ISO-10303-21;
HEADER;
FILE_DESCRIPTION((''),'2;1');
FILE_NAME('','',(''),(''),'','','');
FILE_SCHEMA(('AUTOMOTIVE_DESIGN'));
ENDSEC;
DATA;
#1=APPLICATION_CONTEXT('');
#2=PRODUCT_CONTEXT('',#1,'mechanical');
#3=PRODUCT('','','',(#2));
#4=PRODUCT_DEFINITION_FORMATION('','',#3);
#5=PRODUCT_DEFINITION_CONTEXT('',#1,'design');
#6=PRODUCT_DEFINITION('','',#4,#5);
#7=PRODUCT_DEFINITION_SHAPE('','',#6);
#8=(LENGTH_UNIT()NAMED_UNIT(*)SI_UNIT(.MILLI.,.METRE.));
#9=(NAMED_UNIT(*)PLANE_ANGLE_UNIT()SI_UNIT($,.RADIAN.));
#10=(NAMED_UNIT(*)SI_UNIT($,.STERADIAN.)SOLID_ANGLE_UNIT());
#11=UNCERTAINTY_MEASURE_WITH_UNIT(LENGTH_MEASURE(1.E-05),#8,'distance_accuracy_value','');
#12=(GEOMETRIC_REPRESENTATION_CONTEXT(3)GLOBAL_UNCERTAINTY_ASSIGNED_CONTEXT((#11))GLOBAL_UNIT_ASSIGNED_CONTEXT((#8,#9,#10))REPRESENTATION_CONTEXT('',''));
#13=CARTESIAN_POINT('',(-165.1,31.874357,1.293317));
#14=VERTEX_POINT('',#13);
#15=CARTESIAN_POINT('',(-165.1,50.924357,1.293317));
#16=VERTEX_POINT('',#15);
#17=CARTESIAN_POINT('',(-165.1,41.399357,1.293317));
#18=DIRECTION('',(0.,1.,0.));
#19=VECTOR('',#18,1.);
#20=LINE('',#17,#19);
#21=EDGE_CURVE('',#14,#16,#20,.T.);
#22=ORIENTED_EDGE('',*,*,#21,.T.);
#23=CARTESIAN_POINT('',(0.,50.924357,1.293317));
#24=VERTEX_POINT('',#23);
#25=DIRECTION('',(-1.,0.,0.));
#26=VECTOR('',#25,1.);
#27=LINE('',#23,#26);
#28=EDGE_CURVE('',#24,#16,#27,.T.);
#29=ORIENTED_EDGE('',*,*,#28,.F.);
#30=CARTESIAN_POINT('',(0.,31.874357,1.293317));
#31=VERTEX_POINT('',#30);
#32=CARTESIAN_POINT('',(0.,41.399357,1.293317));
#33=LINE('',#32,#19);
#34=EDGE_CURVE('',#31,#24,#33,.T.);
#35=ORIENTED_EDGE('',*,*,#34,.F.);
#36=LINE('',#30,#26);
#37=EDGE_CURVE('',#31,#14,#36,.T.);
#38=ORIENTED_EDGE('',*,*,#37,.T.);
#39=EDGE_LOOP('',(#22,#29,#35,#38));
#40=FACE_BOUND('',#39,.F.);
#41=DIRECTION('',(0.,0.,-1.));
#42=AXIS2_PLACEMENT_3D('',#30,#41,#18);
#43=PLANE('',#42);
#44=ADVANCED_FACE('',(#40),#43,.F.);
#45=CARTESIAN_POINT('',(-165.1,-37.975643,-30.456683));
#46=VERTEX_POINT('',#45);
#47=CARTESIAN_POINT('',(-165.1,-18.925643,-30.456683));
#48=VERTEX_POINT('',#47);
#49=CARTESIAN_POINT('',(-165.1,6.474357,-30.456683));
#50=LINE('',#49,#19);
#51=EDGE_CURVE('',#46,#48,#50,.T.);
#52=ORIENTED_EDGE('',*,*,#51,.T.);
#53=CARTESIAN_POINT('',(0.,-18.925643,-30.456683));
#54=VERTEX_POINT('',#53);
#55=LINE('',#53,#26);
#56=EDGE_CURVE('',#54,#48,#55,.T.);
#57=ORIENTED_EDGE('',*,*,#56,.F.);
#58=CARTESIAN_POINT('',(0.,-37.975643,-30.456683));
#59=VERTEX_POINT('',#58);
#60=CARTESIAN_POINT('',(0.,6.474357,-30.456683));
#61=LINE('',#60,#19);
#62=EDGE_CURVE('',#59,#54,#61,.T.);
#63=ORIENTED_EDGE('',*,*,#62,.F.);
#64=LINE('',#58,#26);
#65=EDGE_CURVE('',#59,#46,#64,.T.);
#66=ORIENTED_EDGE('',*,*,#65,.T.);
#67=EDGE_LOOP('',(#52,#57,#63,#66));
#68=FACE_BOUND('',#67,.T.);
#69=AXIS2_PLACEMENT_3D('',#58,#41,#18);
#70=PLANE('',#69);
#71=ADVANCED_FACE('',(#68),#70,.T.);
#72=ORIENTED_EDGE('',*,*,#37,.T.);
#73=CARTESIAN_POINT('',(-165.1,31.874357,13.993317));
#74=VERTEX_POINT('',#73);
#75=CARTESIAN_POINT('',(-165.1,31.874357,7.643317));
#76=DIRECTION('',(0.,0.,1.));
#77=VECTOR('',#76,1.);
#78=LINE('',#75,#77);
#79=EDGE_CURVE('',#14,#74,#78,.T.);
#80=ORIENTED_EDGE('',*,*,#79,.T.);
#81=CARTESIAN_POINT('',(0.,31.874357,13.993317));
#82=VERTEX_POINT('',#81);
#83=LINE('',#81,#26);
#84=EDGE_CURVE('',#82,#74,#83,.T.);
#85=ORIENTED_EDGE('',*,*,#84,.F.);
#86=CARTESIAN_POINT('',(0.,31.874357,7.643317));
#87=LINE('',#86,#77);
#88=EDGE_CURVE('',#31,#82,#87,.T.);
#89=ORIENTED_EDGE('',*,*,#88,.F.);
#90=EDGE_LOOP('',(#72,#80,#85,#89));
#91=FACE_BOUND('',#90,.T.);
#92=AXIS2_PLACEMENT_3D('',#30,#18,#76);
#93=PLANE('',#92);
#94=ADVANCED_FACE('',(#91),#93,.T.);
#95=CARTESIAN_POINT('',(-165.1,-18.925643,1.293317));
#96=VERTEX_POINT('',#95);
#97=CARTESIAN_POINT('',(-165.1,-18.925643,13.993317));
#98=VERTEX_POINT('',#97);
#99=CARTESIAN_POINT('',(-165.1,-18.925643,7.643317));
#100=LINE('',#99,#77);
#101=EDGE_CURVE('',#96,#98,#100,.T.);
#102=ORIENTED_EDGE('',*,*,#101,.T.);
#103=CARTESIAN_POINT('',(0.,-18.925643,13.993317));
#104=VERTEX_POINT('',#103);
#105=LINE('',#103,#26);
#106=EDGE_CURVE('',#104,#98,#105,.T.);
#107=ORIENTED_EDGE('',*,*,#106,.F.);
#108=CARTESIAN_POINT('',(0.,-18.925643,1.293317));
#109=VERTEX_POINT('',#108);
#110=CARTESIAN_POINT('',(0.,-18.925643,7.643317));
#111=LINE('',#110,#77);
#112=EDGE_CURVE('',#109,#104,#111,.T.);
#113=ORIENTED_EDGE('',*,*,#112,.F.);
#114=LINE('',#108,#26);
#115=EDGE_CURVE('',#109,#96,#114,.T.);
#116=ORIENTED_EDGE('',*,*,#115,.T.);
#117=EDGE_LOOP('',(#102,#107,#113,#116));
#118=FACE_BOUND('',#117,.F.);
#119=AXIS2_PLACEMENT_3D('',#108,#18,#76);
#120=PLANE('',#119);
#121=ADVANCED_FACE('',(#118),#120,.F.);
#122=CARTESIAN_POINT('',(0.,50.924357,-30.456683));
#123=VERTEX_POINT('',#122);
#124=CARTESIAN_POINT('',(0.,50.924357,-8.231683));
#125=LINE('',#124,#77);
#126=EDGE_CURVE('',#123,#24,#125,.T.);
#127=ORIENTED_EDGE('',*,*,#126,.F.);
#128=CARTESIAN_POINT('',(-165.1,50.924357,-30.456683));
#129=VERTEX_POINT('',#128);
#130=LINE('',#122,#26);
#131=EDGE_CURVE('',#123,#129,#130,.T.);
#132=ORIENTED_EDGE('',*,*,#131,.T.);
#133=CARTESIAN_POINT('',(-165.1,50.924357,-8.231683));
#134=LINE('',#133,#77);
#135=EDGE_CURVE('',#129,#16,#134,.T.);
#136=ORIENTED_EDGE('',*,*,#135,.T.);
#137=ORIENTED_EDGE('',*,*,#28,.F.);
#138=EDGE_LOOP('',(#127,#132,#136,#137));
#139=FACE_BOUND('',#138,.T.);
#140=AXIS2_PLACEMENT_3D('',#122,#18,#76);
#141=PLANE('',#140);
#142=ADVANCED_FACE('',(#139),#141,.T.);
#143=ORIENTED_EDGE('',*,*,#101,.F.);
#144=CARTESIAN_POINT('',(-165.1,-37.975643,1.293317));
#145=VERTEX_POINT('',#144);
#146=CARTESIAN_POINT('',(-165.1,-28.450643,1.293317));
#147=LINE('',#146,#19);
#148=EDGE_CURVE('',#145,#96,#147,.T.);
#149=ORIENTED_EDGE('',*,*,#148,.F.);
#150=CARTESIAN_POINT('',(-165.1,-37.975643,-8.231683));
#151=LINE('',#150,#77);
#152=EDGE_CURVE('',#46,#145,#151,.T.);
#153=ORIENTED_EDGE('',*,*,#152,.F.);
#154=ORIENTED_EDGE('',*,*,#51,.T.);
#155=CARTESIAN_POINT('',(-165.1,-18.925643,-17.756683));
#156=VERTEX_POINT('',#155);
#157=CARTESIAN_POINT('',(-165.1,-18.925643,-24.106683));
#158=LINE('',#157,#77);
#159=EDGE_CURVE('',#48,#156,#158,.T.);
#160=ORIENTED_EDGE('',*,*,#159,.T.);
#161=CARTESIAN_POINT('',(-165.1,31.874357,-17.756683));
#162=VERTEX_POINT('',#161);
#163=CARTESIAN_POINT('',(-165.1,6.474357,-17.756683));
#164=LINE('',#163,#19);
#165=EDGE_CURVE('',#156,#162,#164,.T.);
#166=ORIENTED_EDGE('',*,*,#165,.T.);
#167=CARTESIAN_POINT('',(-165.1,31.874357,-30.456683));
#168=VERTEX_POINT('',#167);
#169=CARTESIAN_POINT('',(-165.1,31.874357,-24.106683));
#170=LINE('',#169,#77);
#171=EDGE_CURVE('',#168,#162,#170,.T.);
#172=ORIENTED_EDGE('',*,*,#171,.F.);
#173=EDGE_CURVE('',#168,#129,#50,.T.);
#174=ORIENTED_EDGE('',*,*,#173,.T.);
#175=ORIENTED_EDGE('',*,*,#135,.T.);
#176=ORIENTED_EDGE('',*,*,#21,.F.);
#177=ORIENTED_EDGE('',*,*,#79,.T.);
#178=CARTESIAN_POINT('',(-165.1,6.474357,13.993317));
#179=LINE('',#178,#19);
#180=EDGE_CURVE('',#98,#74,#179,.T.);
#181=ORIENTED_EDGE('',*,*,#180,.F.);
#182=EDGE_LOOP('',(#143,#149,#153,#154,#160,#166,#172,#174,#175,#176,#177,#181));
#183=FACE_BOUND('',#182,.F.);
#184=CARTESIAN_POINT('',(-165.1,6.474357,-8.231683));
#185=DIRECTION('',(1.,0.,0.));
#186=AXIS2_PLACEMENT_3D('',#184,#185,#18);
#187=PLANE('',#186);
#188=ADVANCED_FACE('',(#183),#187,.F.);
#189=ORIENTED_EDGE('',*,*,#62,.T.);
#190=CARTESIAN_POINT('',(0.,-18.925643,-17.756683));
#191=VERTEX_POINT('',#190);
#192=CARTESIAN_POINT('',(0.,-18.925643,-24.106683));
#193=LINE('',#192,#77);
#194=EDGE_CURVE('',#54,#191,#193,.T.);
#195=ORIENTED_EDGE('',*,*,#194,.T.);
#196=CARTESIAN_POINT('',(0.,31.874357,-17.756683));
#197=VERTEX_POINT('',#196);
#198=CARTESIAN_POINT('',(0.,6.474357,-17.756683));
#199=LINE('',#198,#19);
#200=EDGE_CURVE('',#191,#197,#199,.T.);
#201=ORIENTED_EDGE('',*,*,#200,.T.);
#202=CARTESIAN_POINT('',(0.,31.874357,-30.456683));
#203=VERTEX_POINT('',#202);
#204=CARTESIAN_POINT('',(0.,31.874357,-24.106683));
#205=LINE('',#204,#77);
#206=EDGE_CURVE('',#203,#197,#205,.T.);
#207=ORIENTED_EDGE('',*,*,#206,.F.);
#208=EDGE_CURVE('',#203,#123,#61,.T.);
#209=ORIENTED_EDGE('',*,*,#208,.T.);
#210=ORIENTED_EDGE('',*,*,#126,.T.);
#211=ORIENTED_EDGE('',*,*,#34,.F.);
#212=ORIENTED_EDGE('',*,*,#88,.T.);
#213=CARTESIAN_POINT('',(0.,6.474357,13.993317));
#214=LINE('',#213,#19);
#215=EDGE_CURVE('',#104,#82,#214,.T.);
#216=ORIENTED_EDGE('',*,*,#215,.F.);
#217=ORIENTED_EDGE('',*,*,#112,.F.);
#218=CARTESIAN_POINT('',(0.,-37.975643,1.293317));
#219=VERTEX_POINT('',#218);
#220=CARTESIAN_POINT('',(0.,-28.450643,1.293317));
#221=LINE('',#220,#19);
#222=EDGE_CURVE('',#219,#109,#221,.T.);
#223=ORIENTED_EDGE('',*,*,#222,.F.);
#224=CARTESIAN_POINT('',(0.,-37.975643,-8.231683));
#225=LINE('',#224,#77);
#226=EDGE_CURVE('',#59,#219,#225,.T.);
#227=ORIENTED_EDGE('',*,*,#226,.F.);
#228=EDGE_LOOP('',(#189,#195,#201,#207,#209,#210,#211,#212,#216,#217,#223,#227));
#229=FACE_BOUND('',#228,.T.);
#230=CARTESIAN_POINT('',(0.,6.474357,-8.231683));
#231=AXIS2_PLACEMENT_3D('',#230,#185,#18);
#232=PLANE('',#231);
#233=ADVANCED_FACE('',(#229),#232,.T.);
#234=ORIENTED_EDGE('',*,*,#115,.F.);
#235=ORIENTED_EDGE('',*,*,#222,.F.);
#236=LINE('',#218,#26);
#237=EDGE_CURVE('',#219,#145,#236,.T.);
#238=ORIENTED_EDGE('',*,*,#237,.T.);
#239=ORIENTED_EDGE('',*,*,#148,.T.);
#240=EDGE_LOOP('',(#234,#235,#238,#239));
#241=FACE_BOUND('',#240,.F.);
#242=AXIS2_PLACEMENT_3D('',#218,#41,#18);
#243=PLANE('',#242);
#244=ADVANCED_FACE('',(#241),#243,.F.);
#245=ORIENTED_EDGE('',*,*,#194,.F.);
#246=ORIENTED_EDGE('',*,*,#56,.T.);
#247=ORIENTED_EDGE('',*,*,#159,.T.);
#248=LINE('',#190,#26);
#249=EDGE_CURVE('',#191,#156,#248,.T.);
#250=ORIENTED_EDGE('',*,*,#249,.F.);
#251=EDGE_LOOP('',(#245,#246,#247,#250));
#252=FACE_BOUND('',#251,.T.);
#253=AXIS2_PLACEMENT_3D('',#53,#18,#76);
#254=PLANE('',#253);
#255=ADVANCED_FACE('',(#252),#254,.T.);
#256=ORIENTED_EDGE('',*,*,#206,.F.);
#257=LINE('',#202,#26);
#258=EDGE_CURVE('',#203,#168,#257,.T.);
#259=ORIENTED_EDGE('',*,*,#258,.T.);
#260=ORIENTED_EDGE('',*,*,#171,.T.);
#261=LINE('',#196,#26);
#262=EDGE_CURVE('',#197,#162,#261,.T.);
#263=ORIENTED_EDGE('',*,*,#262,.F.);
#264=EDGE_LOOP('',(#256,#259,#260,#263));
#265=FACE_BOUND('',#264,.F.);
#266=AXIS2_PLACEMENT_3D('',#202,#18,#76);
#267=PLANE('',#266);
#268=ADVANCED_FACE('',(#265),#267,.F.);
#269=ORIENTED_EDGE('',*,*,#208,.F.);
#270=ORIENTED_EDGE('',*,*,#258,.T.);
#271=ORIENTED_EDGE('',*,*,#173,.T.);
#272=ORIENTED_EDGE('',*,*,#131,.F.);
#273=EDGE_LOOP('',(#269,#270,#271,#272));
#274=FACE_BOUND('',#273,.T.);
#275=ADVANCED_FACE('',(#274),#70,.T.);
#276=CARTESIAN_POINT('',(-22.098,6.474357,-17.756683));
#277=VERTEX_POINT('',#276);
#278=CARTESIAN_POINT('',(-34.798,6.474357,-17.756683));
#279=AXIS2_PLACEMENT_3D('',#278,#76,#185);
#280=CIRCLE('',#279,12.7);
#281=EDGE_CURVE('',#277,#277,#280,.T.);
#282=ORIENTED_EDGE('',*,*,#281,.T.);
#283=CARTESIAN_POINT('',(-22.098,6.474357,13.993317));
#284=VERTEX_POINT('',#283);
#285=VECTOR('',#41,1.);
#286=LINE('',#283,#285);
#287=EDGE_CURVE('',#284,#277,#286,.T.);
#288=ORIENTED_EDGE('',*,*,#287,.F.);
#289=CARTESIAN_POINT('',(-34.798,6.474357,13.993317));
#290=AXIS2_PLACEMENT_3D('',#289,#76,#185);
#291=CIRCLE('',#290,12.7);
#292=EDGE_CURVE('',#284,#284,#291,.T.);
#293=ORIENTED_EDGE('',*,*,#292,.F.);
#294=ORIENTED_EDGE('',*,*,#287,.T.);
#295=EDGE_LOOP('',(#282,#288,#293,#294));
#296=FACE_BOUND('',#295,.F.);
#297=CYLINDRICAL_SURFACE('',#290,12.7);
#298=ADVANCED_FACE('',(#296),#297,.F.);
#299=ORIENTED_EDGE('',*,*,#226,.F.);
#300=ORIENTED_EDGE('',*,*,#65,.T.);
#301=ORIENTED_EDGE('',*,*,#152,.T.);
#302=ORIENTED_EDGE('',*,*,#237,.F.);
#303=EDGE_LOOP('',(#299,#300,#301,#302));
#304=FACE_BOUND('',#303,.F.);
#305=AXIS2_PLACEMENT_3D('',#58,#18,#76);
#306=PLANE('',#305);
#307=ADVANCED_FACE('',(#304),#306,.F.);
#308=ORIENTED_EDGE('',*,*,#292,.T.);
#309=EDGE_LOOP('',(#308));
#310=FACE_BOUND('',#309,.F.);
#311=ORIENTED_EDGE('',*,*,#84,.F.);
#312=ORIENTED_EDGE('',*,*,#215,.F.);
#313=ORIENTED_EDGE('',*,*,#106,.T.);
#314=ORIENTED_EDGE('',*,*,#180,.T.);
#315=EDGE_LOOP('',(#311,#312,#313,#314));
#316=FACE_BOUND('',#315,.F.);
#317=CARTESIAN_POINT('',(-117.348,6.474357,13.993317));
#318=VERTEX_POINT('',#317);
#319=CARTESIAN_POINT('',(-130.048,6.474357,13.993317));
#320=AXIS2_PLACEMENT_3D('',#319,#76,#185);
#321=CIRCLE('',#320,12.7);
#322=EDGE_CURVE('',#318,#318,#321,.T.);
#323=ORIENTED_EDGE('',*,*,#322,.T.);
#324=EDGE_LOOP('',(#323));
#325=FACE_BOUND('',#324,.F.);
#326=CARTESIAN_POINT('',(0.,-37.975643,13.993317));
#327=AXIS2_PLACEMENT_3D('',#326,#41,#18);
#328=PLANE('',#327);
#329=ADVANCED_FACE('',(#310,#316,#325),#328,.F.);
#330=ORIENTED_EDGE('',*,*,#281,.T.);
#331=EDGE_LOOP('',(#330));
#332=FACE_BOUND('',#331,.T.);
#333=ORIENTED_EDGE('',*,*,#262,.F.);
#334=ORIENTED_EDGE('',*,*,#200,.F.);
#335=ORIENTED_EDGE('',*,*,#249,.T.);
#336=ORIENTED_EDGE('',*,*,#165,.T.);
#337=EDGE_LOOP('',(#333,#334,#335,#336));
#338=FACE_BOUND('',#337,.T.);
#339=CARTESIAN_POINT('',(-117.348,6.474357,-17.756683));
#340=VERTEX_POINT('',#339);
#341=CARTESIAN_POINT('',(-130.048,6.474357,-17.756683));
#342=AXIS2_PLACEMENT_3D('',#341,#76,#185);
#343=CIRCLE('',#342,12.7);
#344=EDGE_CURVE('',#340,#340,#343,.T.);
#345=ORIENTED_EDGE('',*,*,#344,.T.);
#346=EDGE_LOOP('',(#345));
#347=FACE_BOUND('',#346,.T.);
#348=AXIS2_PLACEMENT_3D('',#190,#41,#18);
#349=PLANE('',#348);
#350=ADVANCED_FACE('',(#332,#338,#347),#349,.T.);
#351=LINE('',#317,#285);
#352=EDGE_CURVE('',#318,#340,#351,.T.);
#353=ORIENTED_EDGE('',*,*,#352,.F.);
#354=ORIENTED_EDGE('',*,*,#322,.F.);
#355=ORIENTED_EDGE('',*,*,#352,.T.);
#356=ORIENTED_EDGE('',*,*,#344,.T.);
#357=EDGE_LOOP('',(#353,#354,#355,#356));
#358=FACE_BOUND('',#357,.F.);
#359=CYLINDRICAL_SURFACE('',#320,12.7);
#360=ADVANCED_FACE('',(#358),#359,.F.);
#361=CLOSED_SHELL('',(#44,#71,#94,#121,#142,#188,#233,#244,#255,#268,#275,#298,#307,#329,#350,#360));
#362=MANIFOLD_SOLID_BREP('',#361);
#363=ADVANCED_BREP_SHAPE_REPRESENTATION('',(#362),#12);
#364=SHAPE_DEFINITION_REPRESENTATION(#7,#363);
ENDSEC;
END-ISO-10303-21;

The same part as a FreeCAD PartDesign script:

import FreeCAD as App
import Part
import Sketcher

V = App.Vector
Q = App.Units.Quantity

doc = App.newDocument("Part")
body = doc.addObject("PartDesign::Body", "Body")

# Sketch on YZ plane
sketch1 = body.newObject("Sketcher::SketchObject", "Sketch")
sketch1.AttachmentSupport = (doc.getObject("YZ_Plane"), [""])
sketch1.MapMode = "FlatFace"
sketch1.addGeometry(Part.LineSegment(V(-38, 14, 0), V(-38, -30, 0)), False)
sketch1.addGeometry(Part.LineSegment(V(-38, -30, 0), V(51, -30, 0)), False)
sketch1.addGeometry(Part.LineSegment(V(51, -30, 0), V(51, 14, 0)), False)
sketch1.addGeometry(Part.LineSegment(V(51, 14, 0), V(-38, 14, 0)), False)
sketch1.addConstraint(Sketcher.Constraint("Coincident", 0, 2, 1, 1))
sketch1.addConstraint(Sketcher.Constraint("Coincident", 1, 2, 2, 1))
sketch1.addConstraint(Sketcher.Constraint("Coincident", 2, 2, 3, 1))
sketch1.addConstraint(Sketcher.Constraint("Coincident", 3, 2, 0, 1))
sketch1.addConstraint(Sketcher.Constraint("Vertical", 0))
sketch1.addConstraint(Sketcher.Constraint("Horizontal", 1))
sketch1.addConstraint(Sketcher.Constraint("Vertical", 2))
sketch1.addConstraint(Sketcher.Constraint("Horizontal", 3))
sketch1.addConstraint(Sketcher.Constraint("DistanceX", 1, 1, 1, 2, Q("3.5 in")))
sketch1.addConstraint(Sketcher.Constraint("DistanceY", 0, 2, 0, 1, Q("1.75 in")))
sketch1.addConstraint(Sketcher.Constraint("DistanceX", 0, 2, -1, 1, Q("37.975643 mm")))
sketch1.addConstraint(Sketcher.Constraint("DistanceY", 0, 2, -1, 1, Q("30.456683 mm")))
pad1 = body.newObject("PartDesign::Pad", "Pad")
pad1.Profile = sketch1
pad1.Length = Q("6.5 in")
pad1.Reversed = True

# Sketch on YZ plane
sketch2 = body.newObject("Sketcher::SketchObject", "Sketch001")
sketch2.AttachmentSupport = (doc.getObject("YZ_Plane"), [""])
sketch2.MapMode = "FlatFace"
sketch2.addGeometry(Part.LineSegment(V(-19, -18, 0), V(-19, -30, 0)), False)
sketch2.addGeometry(Part.LineSegment(V(-19, -30, 0), V(32, -30, 0)), False)
sketch2.addGeometry(Part.LineSegment(V(32, -30, 0), V(32, -18, 0)), False)
sketch2.addGeometry(Part.LineSegment(V(32, -18, 0), V(-19, -18, 0)), False)
sketch2.addConstraint(Sketcher.Constraint("Coincident", 0, 2, 1, 1))
sketch2.addConstraint(Sketcher.Constraint("Coincident", 1, 2, 2, 1))
sketch2.addConstraint(Sketcher.Constraint("Coincident", 2, 2, 3, 1))
sketch2.addConstraint(Sketcher.Constraint("Coincident", 3, 2, 0, 1))
sketch2.addConstraint(Sketcher.Constraint("Vertical", 0))
sketch2.addConstraint(Sketcher.Constraint("Horizontal", 1))
sketch2.addConstraint(Sketcher.Constraint("Vertical", 2))
sketch2.addConstraint(Sketcher.Constraint("Horizontal", 3))
sketch2.addConstraint(Sketcher.Constraint("DistanceX", 1, 1, 1, 2, Q("2 in")))
sketch2.addConstraint(Sketcher.Constraint("DistanceY", 0, 2, 0, 1, Q("0.5 in")))
sketch2.addConstraint(Sketcher.Constraint("DistanceX", 0, 2, -1, 1, Q("18.925643 mm")))
sketch2.addConstraint(Sketcher.Constraint("DistanceY", 0, 2, -1, 1, Q("30.456683 mm")))
pocket1 = body.newObject("PartDesign::Pocket", "Pocket")
pocket1.Profile = sketch2
pocket1.Length = Q("6.5 in")

# Sketch on YZ plane
sketch3 = body.newObject("Sketcher::SketchObject", "Sketch002")
sketch3.AttachmentSupport = (doc.getObject("YZ_Plane"), [""])
sketch3.MapMode = "FlatFace"
sketch3.addGeometry(Part.LineSegment(V(32, 14, 0), V(32, 1, 0)), False)
sketch3.addGeometry(Part.LineSegment(V(32, 1, 0), V(51, 1, 0)), False)
sketch3.addGeometry(Part.LineSegment(V(51, 1, 0), V(51, 14, 0)), False)
sketch3.addGeometry(Part.LineSegment(V(51, 14, 0), V(32, 14, 0)), False)
sketch3.addGeometry(Part.LineSegment(V(-38, 14, 0), V(-38, 1, 0)), False)
sketch3.addGeometry(Part.LineSegment(V(-38, 1, 0), V(-19, 1, 0)), False)
sketch3.addGeometry(Part.LineSegment(V(-19, 1, 0), V(-19, 14, 0)), False)
sketch3.addGeometry(Part.LineSegment(V(-19, 14, 0), V(-38, 14, 0)), False)
sketch3.addConstraint(Sketcher.Constraint("Coincident", 0, 2, 1, 1))
sketch3.addConstraint(Sketcher.Constraint("Coincident", 1, 2, 2, 1))
sketch3.addConstraint(Sketcher.Constraint("Coincident", 2, 2, 3, 1))
sketch3.addConstraint(Sketcher.Constraint("Coincident", 3, 2, 0, 1))
sketch3.addConstraint(Sketcher.Constraint("Coincident", 4, 2, 5, 1))
sketch3.addConstraint(Sketcher.Constraint("Coincident", 5, 2, 6, 1))
sketch3.addConstraint(Sketcher.Constraint("Coincident", 6, 2, 7, 1))
sketch3.addConstraint(Sketcher.Constraint("Coincident", 7, 2, 4, 1))
sketch3.addConstraint(Sketcher.Constraint("Vertical", 0))
sketch3.addConstraint(Sketcher.Constraint("Horizontal", 1))
sketch3.addConstraint(Sketcher.Constraint("Vertical", 2))
sketch3.addConstraint(Sketcher.Constraint("Horizontal", 3))
sketch3.addConstraint(Sketcher.Constraint("Vertical", 4))
sketch3.addConstraint(Sketcher.Constraint("Horizontal", 5))
sketch3.addConstraint(Sketcher.Constraint("Vertical", 6))
sketch3.addConstraint(Sketcher.Constraint("Horizontal", 7))
sketch3.addConstraint(Sketcher.Constraint("Horizontal", 1, 2, 4, 2))
sketch3.addConstraint(Sketcher.Constraint("Horizontal", 3, 2, 6, 2))
sketch3.addConstraint(Sketcher.Constraint("Equal", 3, 5))
sketch3.addConstraint(Sketcher.Constraint("DistanceY", 0, 2, 0, 1, Q("0.5 in")))
sketch3.addConstraint(Sketcher.Constraint("DistanceX", 5, 2, 0, 2, Q("2 in")))
sketch3.addConstraint(Sketcher.Constraint("DistanceX", 1, 1, 1, 2, Q("0.75 in")))
sketch3.addConstraint(Sketcher.Constraint("DistanceX", -1, 1, 0, 2, Q("31.874357 mm")))
sketch3.addConstraint(Sketcher.Constraint("DistanceY", -1, 1, 0, 2, Q("1.293317 mm")))
pocket2 = body.newObject("PartDesign::Pocket", "Pocket001")
pocket2.Profile = sketch3
pocket2.Length = Q("6.5 in")

# Sketch on XY plane
sketch4 = body.newObject("Sketcher::SketchObject", "Sketch003")
sketch4.AttachmentSupport = (doc.getObject("XY_Plane"), [""])
sketch4.MapMode = "FlatFace"
sketch4.AttachmentOffset = App.Placement(V(0, 0, 13.993317), App.Rotation())
sketch4.addGeometry(Part.Circle(V(-130, 6, 0), V(0, 0, 1), 13), False)
sketch4.addGeometry(Part.Circle(V(-35, 6, 0), V(0, 0, 1), 13), False)
sketch4.addConstraint(Sketcher.Constraint("Equal", 0, 1))
sketch4.addConstraint(Sketcher.Constraint("Horizontal", 0, 3, 1, 3))
sketch4.addConstraint(Sketcher.Constraint("Diameter", 0, Q("1 in")))
sketch4.addConstraint(Sketcher.Constraint("DistanceX", 0, 3, -1, 1, Q("5.12 in")))
sketch4.addConstraint(Sketcher.Constraint("DistanceX", 1, 3, -1, 1, Q("1.37 in")))
sketch4.addConstraint(Sketcher.Constraint("DistanceY", -1, 1, 0, 3, Q("6.474357 mm")))
pocket3 = body.newObject("PartDesign::Pocket", "Pocket002")
pocket3.Profile = sketch4
pocket3.Length = Q("1.75 in")

doc.recompute()
